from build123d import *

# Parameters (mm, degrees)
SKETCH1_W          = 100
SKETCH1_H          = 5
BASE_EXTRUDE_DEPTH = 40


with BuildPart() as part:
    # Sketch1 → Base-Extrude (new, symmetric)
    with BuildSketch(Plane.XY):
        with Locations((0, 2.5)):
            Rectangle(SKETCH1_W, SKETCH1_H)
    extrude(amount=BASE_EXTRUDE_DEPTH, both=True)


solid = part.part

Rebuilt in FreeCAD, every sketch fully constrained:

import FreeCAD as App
import Part
import Sketcher

V = App.Vector
Q = App.Units.Quantity

doc = App.newDocument("Part")
params = doc.addObject("Spreadsheet::Sheet", "Params")
for row, (alias, value) in enumerate([
    ("sketch1_width", "100 mm"),
    ("sketch1_height", "5 mm"),
    ("pad1_length", "80 mm"),
], start=1):
    params.set(f"A{row}", alias)
    params.set(f"B{row}", "=" + value)
    params.setAlias(f"B{row}", alias)

body = doc.addObject("PartDesign::Body", "Body")

sketch1 = doc.addObject("Sketcher::SketchObject", "Sketch")
body.addObject(sketch1)
sketch1.AttachmentSupport = (doc.XY_Plane, [""])
sketch1.MapMode = "FlatFace"
sketch1.addGeometry(Part.LineSegment(V(-50, 5, 0), V(-50, 0, 0)), False)
sketch1.addGeometry(Part.LineSegment(V(-50, 0, 0), V(50, 0, 0)), False)
sketch1.addGeometry(Part.LineSegment(V(50, 0, 0), V(50, 5, 0)), False)
sketch1.addGeometry(Part.LineSegment(V(50, 5, 0), V(-50, 5, 0)), False)
sketch1.addConstraint(Sketcher.Constraint("Coincident", 0, 2, 1, 1))
sketch1.addConstraint(Sketcher.Constraint("Coincident", 1, 2, 2, 1))
sketch1.addConstraint(Sketcher.Constraint("Coincident", 2, 2, 3, 1))
sketch1.addConstraint(Sketcher.Constraint("Coincident", 3, 2, 0, 1))
sketch1.addConstraint(Sketcher.Constraint("Vertical", 0))
sketch1.addConstraint(Sketcher.Constraint("Horizontal", 1))
sketch1.addConstraint(Sketcher.Constraint("Vertical", 2))
sketch1.addConstraint(Sketcher.Constraint("Horizontal", 3))
sketch1.addConstraint(Sketcher.Constraint("Symmetric", 0, 2, 1, 2, -1, 1))
sketch1.addConstraint(Sketcher.Constraint("DistanceX", 1, 1, 1, 2, Q("100 mm")))
sketch1.addConstraint(Sketcher.Constraint("DistanceY", 0, 2, 0, 1, Q("5 mm")))
sketch1.setExpression("Constraints[9]", "Params.sketch1_width")
sketch1.setExpression("Constraints[10]", "Params.sketch1_height")
pad1 = doc.addObject("PartDesign::Pad", "Pad")
body.addObject(pad1)
pad1.Profile = sketch1
pad1.setExpression("Length", "Params.pad1_length")
pad1.Midplane = True

doc.recompute()
